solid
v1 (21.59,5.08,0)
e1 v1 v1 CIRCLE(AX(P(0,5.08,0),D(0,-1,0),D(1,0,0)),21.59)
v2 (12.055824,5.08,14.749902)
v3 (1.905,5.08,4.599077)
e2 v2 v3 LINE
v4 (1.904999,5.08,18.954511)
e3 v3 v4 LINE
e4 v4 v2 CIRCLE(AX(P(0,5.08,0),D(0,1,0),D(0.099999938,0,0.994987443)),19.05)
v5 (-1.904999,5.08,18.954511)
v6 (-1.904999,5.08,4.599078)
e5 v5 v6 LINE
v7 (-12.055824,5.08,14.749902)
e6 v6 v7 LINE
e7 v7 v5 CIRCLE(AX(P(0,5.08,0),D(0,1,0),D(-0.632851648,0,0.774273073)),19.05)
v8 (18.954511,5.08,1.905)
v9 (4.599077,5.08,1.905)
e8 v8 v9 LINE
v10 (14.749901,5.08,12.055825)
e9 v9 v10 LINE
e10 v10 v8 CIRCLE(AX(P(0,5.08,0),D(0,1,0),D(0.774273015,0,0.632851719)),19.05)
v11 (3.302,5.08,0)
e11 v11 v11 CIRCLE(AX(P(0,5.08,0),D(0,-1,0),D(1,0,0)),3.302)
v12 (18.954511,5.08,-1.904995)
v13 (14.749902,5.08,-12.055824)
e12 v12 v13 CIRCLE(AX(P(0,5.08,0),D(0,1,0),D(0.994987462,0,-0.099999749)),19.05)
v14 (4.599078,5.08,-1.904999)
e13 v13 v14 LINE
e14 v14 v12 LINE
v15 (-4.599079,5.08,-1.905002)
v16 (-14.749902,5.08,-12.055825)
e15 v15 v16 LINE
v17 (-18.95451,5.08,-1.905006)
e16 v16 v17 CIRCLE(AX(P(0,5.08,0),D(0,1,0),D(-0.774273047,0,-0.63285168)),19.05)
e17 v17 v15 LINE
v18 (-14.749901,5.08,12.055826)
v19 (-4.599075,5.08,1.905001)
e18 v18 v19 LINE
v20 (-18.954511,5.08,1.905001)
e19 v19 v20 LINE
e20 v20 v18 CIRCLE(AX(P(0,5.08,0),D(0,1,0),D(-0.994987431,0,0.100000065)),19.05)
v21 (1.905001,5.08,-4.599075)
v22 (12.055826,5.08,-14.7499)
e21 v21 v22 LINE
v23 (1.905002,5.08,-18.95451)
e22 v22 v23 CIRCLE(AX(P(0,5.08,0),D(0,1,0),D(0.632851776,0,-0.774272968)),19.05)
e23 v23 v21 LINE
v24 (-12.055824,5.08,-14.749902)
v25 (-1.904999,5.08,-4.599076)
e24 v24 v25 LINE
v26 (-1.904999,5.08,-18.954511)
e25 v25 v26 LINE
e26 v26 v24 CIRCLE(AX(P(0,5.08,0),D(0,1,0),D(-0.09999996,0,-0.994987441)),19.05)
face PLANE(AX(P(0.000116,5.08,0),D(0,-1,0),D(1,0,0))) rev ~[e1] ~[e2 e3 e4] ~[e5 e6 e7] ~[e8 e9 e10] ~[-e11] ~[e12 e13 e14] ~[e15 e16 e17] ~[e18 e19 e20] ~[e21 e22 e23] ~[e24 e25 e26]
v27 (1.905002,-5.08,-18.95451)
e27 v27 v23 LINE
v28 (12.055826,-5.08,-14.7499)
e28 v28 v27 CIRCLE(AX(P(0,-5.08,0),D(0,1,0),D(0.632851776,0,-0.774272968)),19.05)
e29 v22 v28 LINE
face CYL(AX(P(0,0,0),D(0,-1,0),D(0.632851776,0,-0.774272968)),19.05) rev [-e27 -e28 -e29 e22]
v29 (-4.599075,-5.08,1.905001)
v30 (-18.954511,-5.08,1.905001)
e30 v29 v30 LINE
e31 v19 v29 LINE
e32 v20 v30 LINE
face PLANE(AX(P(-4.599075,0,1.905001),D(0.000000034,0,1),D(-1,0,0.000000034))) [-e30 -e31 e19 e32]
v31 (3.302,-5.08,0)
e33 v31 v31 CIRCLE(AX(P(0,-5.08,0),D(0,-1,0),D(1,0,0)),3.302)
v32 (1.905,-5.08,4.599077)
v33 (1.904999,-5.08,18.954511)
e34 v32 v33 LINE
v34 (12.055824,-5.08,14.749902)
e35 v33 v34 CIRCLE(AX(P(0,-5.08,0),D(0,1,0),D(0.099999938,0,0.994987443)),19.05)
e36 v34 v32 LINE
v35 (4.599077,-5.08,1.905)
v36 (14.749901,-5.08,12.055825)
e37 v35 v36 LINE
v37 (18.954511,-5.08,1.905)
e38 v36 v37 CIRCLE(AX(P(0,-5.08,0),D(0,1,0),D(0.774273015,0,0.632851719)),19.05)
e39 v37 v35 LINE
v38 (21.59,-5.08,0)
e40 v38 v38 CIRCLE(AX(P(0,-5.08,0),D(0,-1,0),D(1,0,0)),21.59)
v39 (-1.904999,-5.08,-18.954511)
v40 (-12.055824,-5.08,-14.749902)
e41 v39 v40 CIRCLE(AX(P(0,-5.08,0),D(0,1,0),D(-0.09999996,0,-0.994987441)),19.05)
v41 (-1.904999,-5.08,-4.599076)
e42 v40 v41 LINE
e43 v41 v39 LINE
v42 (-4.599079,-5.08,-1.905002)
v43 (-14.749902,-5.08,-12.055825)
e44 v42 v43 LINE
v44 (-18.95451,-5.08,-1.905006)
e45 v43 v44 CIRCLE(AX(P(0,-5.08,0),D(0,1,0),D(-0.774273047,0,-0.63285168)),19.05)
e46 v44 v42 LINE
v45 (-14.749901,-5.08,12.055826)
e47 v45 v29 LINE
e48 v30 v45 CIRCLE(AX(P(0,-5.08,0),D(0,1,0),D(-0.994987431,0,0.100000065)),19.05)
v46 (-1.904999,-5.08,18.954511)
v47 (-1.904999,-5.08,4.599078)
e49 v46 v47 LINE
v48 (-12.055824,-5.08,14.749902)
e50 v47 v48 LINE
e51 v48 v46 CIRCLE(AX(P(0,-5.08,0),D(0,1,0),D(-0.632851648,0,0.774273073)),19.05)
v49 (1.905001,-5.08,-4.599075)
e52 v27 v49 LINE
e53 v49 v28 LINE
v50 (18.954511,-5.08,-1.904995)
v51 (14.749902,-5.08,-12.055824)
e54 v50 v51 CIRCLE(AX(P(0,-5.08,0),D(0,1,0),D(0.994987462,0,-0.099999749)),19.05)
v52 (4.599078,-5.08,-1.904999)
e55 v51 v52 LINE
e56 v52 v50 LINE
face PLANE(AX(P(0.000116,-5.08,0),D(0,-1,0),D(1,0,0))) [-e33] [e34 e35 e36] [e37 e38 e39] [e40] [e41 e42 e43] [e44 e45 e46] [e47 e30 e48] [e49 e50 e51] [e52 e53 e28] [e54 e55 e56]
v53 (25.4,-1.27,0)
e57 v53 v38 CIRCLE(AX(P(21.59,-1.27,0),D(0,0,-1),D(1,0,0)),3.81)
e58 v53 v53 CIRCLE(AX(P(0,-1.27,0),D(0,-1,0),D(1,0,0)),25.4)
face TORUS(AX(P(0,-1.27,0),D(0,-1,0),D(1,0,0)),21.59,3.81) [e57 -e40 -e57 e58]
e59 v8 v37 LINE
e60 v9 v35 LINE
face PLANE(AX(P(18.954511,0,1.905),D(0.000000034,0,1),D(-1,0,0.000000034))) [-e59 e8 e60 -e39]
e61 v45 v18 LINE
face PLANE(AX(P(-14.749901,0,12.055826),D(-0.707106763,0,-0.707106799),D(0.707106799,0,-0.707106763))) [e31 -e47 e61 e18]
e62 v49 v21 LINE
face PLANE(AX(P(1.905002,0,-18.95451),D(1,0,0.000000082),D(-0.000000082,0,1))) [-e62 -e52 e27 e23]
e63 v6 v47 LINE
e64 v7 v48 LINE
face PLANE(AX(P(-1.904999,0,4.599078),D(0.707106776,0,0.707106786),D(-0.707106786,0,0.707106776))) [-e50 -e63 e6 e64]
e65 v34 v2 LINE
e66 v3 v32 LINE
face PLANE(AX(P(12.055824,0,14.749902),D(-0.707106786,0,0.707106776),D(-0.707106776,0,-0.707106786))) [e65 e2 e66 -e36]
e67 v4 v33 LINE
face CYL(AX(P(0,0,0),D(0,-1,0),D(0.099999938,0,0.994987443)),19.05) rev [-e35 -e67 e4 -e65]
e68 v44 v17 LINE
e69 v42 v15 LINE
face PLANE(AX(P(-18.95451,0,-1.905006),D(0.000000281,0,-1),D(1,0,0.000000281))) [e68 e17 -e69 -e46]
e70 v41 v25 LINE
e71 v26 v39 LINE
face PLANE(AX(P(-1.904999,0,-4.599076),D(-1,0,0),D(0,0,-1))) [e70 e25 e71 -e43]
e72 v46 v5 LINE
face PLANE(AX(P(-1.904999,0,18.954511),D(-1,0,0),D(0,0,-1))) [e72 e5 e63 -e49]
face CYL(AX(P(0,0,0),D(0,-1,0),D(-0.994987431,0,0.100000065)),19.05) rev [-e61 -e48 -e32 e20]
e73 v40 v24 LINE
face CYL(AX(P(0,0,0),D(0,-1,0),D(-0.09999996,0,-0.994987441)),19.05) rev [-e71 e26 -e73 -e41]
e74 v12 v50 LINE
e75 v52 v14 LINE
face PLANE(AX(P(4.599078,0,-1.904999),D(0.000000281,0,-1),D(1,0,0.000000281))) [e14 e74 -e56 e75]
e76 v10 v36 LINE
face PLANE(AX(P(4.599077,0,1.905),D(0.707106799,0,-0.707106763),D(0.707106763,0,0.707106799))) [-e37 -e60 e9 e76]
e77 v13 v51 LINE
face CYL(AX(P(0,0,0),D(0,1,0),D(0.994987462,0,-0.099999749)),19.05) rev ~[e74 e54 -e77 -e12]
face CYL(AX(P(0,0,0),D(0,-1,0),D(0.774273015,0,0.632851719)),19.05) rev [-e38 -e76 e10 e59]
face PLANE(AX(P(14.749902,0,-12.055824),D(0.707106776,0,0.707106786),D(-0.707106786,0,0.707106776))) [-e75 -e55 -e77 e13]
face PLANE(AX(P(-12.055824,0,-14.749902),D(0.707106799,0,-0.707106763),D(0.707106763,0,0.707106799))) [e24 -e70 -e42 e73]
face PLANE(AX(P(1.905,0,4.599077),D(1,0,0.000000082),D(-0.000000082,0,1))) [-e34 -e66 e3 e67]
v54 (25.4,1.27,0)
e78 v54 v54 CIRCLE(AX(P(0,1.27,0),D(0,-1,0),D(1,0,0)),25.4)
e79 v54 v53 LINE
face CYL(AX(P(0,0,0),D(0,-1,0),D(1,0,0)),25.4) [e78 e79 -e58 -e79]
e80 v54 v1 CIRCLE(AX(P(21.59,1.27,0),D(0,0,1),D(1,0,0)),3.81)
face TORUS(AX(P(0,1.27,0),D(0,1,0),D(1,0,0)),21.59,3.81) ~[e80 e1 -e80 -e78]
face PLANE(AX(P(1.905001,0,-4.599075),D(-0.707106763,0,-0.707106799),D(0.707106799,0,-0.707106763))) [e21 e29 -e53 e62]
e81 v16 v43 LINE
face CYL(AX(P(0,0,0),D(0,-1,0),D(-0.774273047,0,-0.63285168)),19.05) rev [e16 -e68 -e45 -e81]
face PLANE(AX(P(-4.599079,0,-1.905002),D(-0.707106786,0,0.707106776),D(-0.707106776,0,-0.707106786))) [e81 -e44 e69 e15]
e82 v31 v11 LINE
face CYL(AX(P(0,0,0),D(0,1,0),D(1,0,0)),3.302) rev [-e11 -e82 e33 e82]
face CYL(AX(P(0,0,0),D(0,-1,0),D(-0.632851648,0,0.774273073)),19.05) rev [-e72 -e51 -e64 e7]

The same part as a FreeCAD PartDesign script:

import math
import FreeCAD as App
import Part
import Sketcher

V = App.Vector
Q = App.Units.Quantity


def edges_at(feature, points):
    """Names of the edges that pass closest to the given points."""
    edges = feature.Shape.Edges
    near = lambda p: min(range(len(edges)), key=lambda i: edges[i].distToShape(Part.Vertex(*p))[0])
    return sorted({f"Edge{near(p) + 1}" for p in points})

doc = App.newDocument("Part")
body = doc.addObject("PartDesign::Body", "Body")

sketch1 = body.newObject("Sketcher::SketchObject", "Sketch")
sketch1.AttachmentSupport = (doc.getObject("XZ_Plane"), [""])
sketch1.MapMode = "FlatFace"
sketch1.addGeometry(Part.Circle(V(0, 0, 0), V(0, 0, 1), 25.4), False)
sketch1.addGeometry(Part.ArcOfCircle(Part.Circle(V(0, 0, 0), V(0, 0, 1), 19.1), math.radians(6), math.radians(39)), False)
sketch1.addGeometry(Part.ArcOfCircle(Part.Circle(V(0, 0, 0), V(0, 0, 1), 19), math.radians(0), math.radians(5.74)), False)
sketch1.addGeometry(Part.ArcOfCircle(Part.Circle(V(0, 0, 0), V(0, 0, 1), 19), math.radians(-5.74), math.radians(0)), False)
sketch1.addGeometry(Part.ArcOfCircle(Part.Circle(V(0, 0, 0), V(0, 0, 1), 19), math.radians(-39), math.radians(-6)), False)
sketch1.addGeometry(Part.ArcOfCircle(Part.Circle(V(0, 0, 0), V(0, 0, 1), 19), math.radians(-50.74), math.radians(-39.26)), False)
sketch1.addGeometry(Part.ArcOfCircle(Part.Circle(V(0, 0, 0), V(0, 0, 1), 19.1), math.radians(-84), math.radians(-51)), False)
sketch1.addGeometry(Part.ArcOfCircle(Part.Circle(V(0, 0, 0), V(0, 0, 1), 19.1), math.radians(-95.74), math.radians(-84.26)), False)
sketch1.addGeometry(Part.ArcOfCircle(Part.Circle(V(0, 0, 0), V(0, 0, 1), 19), math.radians(-129), math.radians(-96)), False)
sketch1.addGeometry(Part.ArcOfCircle(Part.Circle(V(0, 0, 0), V(0, 0, 1), 19), math.radians(-140.74), math.radians(-129.26)), False)
sketch1.addGeometry(Part.ArcOfCircle(Part.Circle(V(0, 0, 0), V(0, 0, 1), 19.1), math.radians(-174), math.radians(-141)), False)
sketch1.addGeometry(Part.ArcOfCircle(Part.Circle(V(0, 0, 0), V(0, 0, 1), 19.1), math.radians(174.26), math.radians(185.74)), False)
sketch1.addGeometry(Part.ArcOfCircle(Part.Circle(V(0, 0, 0), V(0, 0, 1), 19.1), math.radians(141), math.radians(174)), False)
sketch1.addGeometry(Part.ArcOfCircle(Part.Circle(V(0, 0, 0), V(0, 0, 1), 19.1), math.radians(129.26), math.radians(140.74)), False)
sketch1.addGeometry(Part.ArcOfCircle(Part.Circle(V(0, 0, 0), V(0, 0, 1), 19.1), math.radians(96), math.radians(129)), False)
sketch1.addGeometry(Part.ArcOfCircle(Part.Circle(V(0, 0, 0), V(0, 0, 1), 19.1), math.radians(84.26), math.radians(95.74)), False)
sketch1.addGeometry(Part.ArcOfCircle(Part.Circle(V(0, 0, 0), V(0, 0, 1), 19.1), math.radians(51), math.radians(84)), False)
sketch1.addGeometry(Part.ArcOfCircle(Part.Circle(V(0, 0, 0), V(0, 0, 1), 19.1), math.radians(39.26), math.radians(50.74)), False)
sketch1.addConstraint(Sketcher.Constraint("Tangent", 1, 1, 2, 2))
sketch1.addConstraint(Sketcher.Constraint("Tangent", 2, 1, 3, 2))
sketch1.addConstraint(Sketcher.Constraint("Tangent", 3, 1, 4, 2))
sketch1.addConstraint(Sketcher.Constraint("Tangent", 4, 1, 5, 2))
sketch1.addConstraint(Sketcher.Constraint("Tangent", 5, 1, 6, 2))
sketch1.addConstraint(Sketcher.Constraint("Tangent", 6, 1, 7, 2))
sketch1.addConstraint(Sketcher.Constraint("Tangent", 7, 1, 8, 2))
sketch1.addConstraint(Sketcher.Constraint("Tangent", 8, 1, 9, 2))
sketch1.addConstraint(Sketcher.Constraint("Tangent", 9, 1, 10, 2))
sketch1.addConstraint(Sketcher.Constraint("Tangent", 10, 1, 11, 2))
sketch1.addConstraint(Sketcher.Constraint("Tangent", 11, 1, 12, 2))
sketch1.addConstraint(Sketcher.Constraint("Tangent", 12, 1, 13, 2))
sketch1.addConstraint(Sketcher.Constraint("Tangent", 13, 1, 14, 2))
sketch1.addConstraint(Sketcher.Constraint("Tangent", 14, 1, 15, 2))
sketch1.addConstraint(Sketcher.Constraint("Tangent", 15, 1, 16, 2))
sketch1.addConstraint(Sketcher.Constraint("Tangent", 16, 1, 17, 2))
sketch1.addConstraint(Sketcher.Constraint("Tangent", 17, 1, 1, 2))
sketch1.addConstraint(Sketcher.Constraint("Coincident", 0, 3, -1, 1))
sketch1.addConstraint(Sketcher.Constraint("Coincident", 1, 3, -1, 1))
sketch1.addConstraint(Sketcher.Constraint("Coincident", 3, 3, -1, 1))
sketch1.addConstraint(Sketcher.Constraint("Coincident", 5, 3, -1, 1))
sketch1.addConstraint(Sketcher.Constraint("Coincident", 7, 3, -1, 1))
sketch1.addConstraint(Sketcher.Constraint("Coincident", 9, 3, -1, 1))
sketch1.addConstraint(Sketcher.Constraint("Coincident", 11, 3, -1, 1))
sketch1.addConstraint(Sketcher.Constraint("Coincident", 13, 3, -1, 1))
sketch1.addConstraint(Sketcher.Constraint("Coincident", 15, 3, -1, 1))
sketch1.addConstraint(Sketcher.Constraint("PointOnObject", 2, 1, -1))
sketch1.addConstraint(Sketcher.Constraint("Horizontal", 6, 1, 7, 1))
sketch1.addConstraint(Sketcher.Constraint("Horizontal", 5, 1, 8, 1))
sketch1.addConstraint(Sketcher.Constraint("Horizontal", 4, 1, 9, 1))
sketch1.addConstraint(Sketcher.Constraint("Horizontal", 1, 1, 11, 1))
sketch1.addConstraint(Sketcher.Constraint("Horizontal", 14, 1, 15, 1))
sketch1.addConstraint(Sketcher.Constraint("Horizontal", 13, 1, 16, 1))
sketch1.addConstraint(Sketcher.Constraint("Horizontal", 12, 1, 17, 1))
sketch1.addConstraint(Sketcher.Constraint("Vertical", 1, 1, 3, 1))
sketch1.addConstraint(Sketcher.Constraint("Vertical", 10, 1, 11, 1))
sketch1.addConstraint(Sketcher.Constraint("Vertical", 9, 1, 12, 1))
sketch1.addConstraint(Sketcher.Constraint("Vertical", 8, 1, 13, 1))
sketch1.addConstraint(Sketcher.Constraint("Vertical", 7, 1, 14, 1))
sketch1.addConstraint(Sketcher.Constraint("Diameter", 0, Q("2 in")))
sketch1.addConstraint(Sketcher.Constraint("Radius", 1, Q("0.75 in")))
sketch1.addConstraint(Sketcher.Constraint("DistanceY", 3, 1, 1, 1, Q("0.1499998 in")))
sketch1.addConstraint(Sketcher.Constraint("DistanceX", 7, 1, 6, 1, Q("0.15 in")))
sketch1.addConstraint(Sketcher.Constraint("DistanceY", 5, 1, -1, 1, Q("14.7499 mm")))
sketch1.addConstraint(Sketcher.Constraint("DistanceX", 9, 1, -1, 1, Q("14.749902 mm")))
pad1 = body.newObject("PartDesign::Pad", "Pad")
pad1.Profile = sketch1
pad1.Length = Q("0.4 in")
pad1.Midplane = True
doc.recompute()

fillet = body.newObject("PartDesign::Fillet", "Fillet")
fillet.Base = (pad1, edges_at(pad1, [(-25.4, 5.08, 0), (-25.4, -5.08, 0)]))
fillet.Radius = Q("0.15 in")

sketch2 = body.newObject("Sketcher::SketchObject", "Sketch001")
sketch2.AttachmentSupport = (doc.getObject("XZ_Plane"), [""])
sketch2.MapMode = "FlatFace"
sketch2.addGeometry(Part.ArcOfCircle(Part.Circle(V(0, 0, 0), V(0, 0, 1), 19), math.radians(-5.74), math.radians(0)), False)
sketch2.addGeometry(Part.ArcOfCircle(Part.Circle(V(0, 0, 0), V(0, 0, 1), 19), math.radians(0), math.radians(5.74)), False)
sketch2.addGeometry(Part.LineSegment(V(19, 1.9, 0), V(4.6, 1.9, 0)), False)
sketch2.addGeometry(Part.LineSegment(V(4.6, 1.9, 0), V(14.7, 12.1, 0)), False)
sketch2.addGeometry(Part.ArcOfCircle(Part.Circle(V(0, 0, 0), V(0, 0, 1), 19.1), math.radians(39.26), math.radians(50.74)), False)
sketch2.addGeometry(Part.LineSegment(V(12.1, 14.7, 0), V(1.9, 4.6, 0)), False)
sketch2.addGeometry(Part.LineSegment(V(1.9, 4.6, 0), V(1.9, 19, 0)), False)
sketch2.addGeometry(Part.ArcOfCircle(Part.Circle(V(0, 0, 0), V(0, 0, 1), 19.1), math.radians(84.26), math.radians(95.74)), False)
sketch2.addGeometry(Part.LineSegment(V(-1.9, 19, 0), V(-1.9, 4.6, 0)), False)
sketch2.addGeometry(Part.LineSegment(V(-1.9, 4.6, 0), V(-12.1, 14.7, 0)), False)
sketch2.addGeometry(Part.ArcOfCircle(Part.Circle(V(0, 0, 0), V(0, 0, 1), 19.1), math.radians(129.26), math.radians(140.74)), False)
sketch2.addGeometry(Part.LineSegment(V(-14.7, 12.1, 0), V(-4.6, 1.9, 0)), False)
sketch2.addGeometry(Part.LineSegment(V(-4.6, 1.9, 0), V(-19, 1.9, 0)), False)
sketch2.addGeometry(Part.ArcOfCircle(Part.Circle(V(0, 0, 0), V(0, 0, 1), 19.1), math.radians(174.26), math.radians(185.74)), False)
sketch2.addGeometry(Part.LineSegment(V(-19, -1.9, 0), V(-4.6, -1.9, 0)), False)
sketch2.addGeometry(Part.LineSegment(V(-4.6, -1.9, 0), V(-14.7, -12.1, 0)), False)
sketch2.addGeometry(Part.ArcOfCircle(Part.Circle(V(0, 0, 0), V(0, 0, 1), 19), math.radians(-140.74), math.radians(-129.26)), False)
sketch2.addGeometry(Part.LineSegment(V(-12.1, -14.7, 0), V(-1.9, -4.6, 0)), False)
sketch2.addGeometry(Part.LineSegment(V(-1.9, -4.6, 0), V(-1.9, -19, 0)), False)
sketch2.addGeometry(Part.ArcOfCircle(Part.Circle(V(0, 0, 0), V(0, 0, 1), 19.1), math.radians(-95.74), math.radians(-84.26)), False)
sketch2.addGeometry(Part.LineSegment(V(1.9, -19, 0), V(1.9, -4.6, 0)), False)
sketch2.addGeometry(Part.LineSegment(V(1.9, -4.6, 0), V(12.1, -14.7, 0)), False)
sketch2.addGeometry(Part.ArcOfCircle(Part.Circle(V(0, 0, 0), V(0, 0, 1), 19), math.radians(-50.74), math.radians(-39.26)), False)
sketch2.addGeometry(Part.LineSegment(V(14.7, -12.1, 0), V(4.6, -1.9, 0)), False)
sketch2.addGeometry(Part.LineSegment(V(4.6, -1.9, 0), V(19, -1.9, 0)), False)
sketch2.addGeometry(Part.Circle(V(0, 0, 0), V(0, 0, 1), 3.3), False)
sketch2.addConstraint(Sketcher.Constraint("Tangent", 0, 2, 1, 1))
sketch2.addConstraint(Sketcher.Constraint("Coincident", 1, 2, 2, 1))
sketch2.addConstraint(Sketcher.Constraint("Coincident", 2, 2, 3, 1))
sketch2.addConstraint(Sketcher.Constraint("Coincident", 3, 2, 4, 1))
sketch2.addConstraint(Sketcher.Constraint("Coincident", 4, 2, 5, 1))
sketch2.addConstraint(Sketcher.Constraint("Coincident", 5, 2, 6, 1))
sketch2.addConstraint(Sketcher.Constraint("Coincident", 6, 2, 7, 1))
sketch2.addConstraint(Sketcher.Constraint("Coincident", 7, 2, 8, 1))
sketch2.addConstraint(Sketcher.Constraint("Coincident", 8, 2, 9, 1))
sketch2.addConstraint(Sketcher.Constraint("Coincident", 9, 2, 10, 1))
sketch2.addConstraint(Sketcher.Constraint("Coincident", 10, 2, 11, 1))
sketch2.addConstraint(Sketcher.Constraint("Coincident", 11, 2, 12, 1))
sketch2.addConstraint(Sketcher.Constraint("Coincident", 12, 2, 13, 1))
sketch2.addConstraint(Sketcher.Constraint("Coincident", 13, 2, 14, 1))
sketch2.addConstraint(Sketcher.Constraint("Coincident", 14, 2, 15, 1))
sketch2.addConstraint(Sketcher.Constraint("Coincident", 15, 2, 16, 1))
sketch2.addConstraint(Sketcher.Constraint("Coincident", 16, 2, 17, 1))
sketch2.addConstraint(Sketcher.Constraint("Coincident", 17, 2, 18, 1))
sketch2.addConstraint(Sketcher.Constraint("Coincident", 18, 2, 19, 1))
sketch2.addConstraint(Sketcher.Constraint("Coincident", 19, 2, 20, 1))
sketch2.addConstraint(Sketcher.Constraint("Coincident", 20, 2, 21, 1))
sketch2.addConstraint(Sketcher.Constraint("Coincident", 21, 2, 22, 1))
sketch2.addConstraint(Sketcher.Constraint("Coincident", 22, 2, 23, 1))
sketch2.addConstraint(Sketcher.Constraint("Coincident", 23, 2, 24, 1))
sketch2.addConstraint(Sketcher.Constraint("Coincident", 24, 2, 0, 1))
sketch2.addConstraint(Sketcher.Constraint("Horizontal", 2))
sketch2.addConstraint(Sketcher.Constraint("Vertical", 6))
sketch2.addConstraint(Sketcher.Constraint("Vertical", 8))
sketch2.addConstraint(Sketcher.Constraint("Horizontal", 12))
sketch2.addConstraint(Sketcher.Constraint("Vertical", 18))
sketch2.addConstraint(Sketcher.Constraint("Vertical", 20))
sketch2.addConstraint(Sketcher.Constraint("Coincident", 0, 3, -1, 1))
sketch2.addConstraint(Sketcher.Constraint("Coincident", 4, 3, -1, 1))
sketch2.addConstraint(Sketcher.Constraint("Coincident", 7, 3, -1, 1))
sketch2.addConstraint(Sketcher.Constraint("Coincident", 10, 3, -1, 1))
sketch2.addConstraint(Sketcher.Constraint("Coincident", 13, 3, -1, 1))
sketch2.addConstraint(Sketcher.Constraint("Coincident", 16, 3, -1, 1))
sketch2.addConstraint(Sketcher.Constraint("Coincident", 19, 3, -1, 1))
sketch2.addConstraint(Sketcher.Constraint("Coincident", 22, 3, -1, 1))
sketch2.addConstraint(Sketcher.Constraint("Coincident", 25, 3, -1, 1))
sketch2.addConstraint(Sketcher.Constraint("Equal", 0, 1))
sketch2.addConstraint(Sketcher.Constraint("Equal", 1, 4))
sketch2.addConstraint(Sketcher.Constraint("Equal", 4, 7))
sketch2.addConstraint(Sketcher.Constraint("Equal", 7, 10))
sketch2.addConstraint(Sketcher.Constraint("Equal", 10, 13))
sketch2.addConstraint(Sketcher.Constraint("Equal", 13, 16))
sketch2.addConstraint(Sketcher.Constraint("Equal", 16, 19))
sketch2.addConstraint(Sketcher.Constraint("Equal", 19, 22))
sketch2.addConstraint(Sketcher.Constraint("Symmetric", 2, 2, 14, 2, -1, 1))
sketch2.addConstraint(Sketcher.Constraint("Symmetric", 5, 2, 17, 2, -1, 1))
sketch2.addConstraint(Sketcher.Constraint("Symmetric", 8, 2, 20, 2, -1, 1))
sketch2.addConstraint(Sketcher.Constraint("Symmetric", 11, 2, 23, 2, -1, 1))
sketch2.addConstraint(Sketcher.Constraint("Symmetric", 5, 2, 8, 2, -2))
sketch2.addConstraint(Sketcher.Constraint("Symmetric", 2, 2, 11, 2, -2))
sketch2.addConstraint(Sketcher.Constraint("PointOnObject", 0, 2, -1))
sketch2.addConstraint(Sketcher.Constraint("Parallel", 3, 5))
sketch2.addConstraint(Sketcher.Constraint("Perpendicular", 5, 9))
sketch2.addConstraint(Sketcher.Constraint("Parallel", 9, 11))
sketch2.addConstraint(Sketcher.Constraint("Perpendicular", 11, 15))
sketch2.addConstraint(Sketcher.Constraint("Parallel", 15, 17))
sketch2.addConstraint(Sketcher.Constraint("Perpendicular", 17, 21))
sketch2.addConstraint(Sketcher.Constraint("Parallel", 21, 23))
sketch2.addConstraint(Sketcher.Constraint("Parallel", 14, 24))
sketch2.addConstraint(Sketcher.Constraint("Horizontal", 4, 2, 9, 2))
sketch2.addConstraint(Sketcher.Constraint("Vertical", 12, 2, 13, 2))
sketch2.addConstraint(Sketcher.Constraint("Equal", 12, 6))
sketch2.addConstraint(Sketcher.Constraint("Equal", 3, 5))
sketch2.addConstraint(Sketcher.Constraint("Equal", 14, 15))
sketch2.addConstraint(Sketcher.Constraint("Diameter", 25, Q("0.26 in")))
sketch2.addConstraint(Sketcher.Constraint("Radius", 0, Q("0.75 in")))
sketch2.addConstraint(Sketcher.Constraint("DistanceX", 7, 2, 6, 2, Q("0.1499999 in")))
pad2 = body.newObject("PartDesign::Pad", "Pad001")
pad2.Profile = sketch2
pad2.Length = Q("0.4 in")
pad2.Midplane = True

doc.recompute()
